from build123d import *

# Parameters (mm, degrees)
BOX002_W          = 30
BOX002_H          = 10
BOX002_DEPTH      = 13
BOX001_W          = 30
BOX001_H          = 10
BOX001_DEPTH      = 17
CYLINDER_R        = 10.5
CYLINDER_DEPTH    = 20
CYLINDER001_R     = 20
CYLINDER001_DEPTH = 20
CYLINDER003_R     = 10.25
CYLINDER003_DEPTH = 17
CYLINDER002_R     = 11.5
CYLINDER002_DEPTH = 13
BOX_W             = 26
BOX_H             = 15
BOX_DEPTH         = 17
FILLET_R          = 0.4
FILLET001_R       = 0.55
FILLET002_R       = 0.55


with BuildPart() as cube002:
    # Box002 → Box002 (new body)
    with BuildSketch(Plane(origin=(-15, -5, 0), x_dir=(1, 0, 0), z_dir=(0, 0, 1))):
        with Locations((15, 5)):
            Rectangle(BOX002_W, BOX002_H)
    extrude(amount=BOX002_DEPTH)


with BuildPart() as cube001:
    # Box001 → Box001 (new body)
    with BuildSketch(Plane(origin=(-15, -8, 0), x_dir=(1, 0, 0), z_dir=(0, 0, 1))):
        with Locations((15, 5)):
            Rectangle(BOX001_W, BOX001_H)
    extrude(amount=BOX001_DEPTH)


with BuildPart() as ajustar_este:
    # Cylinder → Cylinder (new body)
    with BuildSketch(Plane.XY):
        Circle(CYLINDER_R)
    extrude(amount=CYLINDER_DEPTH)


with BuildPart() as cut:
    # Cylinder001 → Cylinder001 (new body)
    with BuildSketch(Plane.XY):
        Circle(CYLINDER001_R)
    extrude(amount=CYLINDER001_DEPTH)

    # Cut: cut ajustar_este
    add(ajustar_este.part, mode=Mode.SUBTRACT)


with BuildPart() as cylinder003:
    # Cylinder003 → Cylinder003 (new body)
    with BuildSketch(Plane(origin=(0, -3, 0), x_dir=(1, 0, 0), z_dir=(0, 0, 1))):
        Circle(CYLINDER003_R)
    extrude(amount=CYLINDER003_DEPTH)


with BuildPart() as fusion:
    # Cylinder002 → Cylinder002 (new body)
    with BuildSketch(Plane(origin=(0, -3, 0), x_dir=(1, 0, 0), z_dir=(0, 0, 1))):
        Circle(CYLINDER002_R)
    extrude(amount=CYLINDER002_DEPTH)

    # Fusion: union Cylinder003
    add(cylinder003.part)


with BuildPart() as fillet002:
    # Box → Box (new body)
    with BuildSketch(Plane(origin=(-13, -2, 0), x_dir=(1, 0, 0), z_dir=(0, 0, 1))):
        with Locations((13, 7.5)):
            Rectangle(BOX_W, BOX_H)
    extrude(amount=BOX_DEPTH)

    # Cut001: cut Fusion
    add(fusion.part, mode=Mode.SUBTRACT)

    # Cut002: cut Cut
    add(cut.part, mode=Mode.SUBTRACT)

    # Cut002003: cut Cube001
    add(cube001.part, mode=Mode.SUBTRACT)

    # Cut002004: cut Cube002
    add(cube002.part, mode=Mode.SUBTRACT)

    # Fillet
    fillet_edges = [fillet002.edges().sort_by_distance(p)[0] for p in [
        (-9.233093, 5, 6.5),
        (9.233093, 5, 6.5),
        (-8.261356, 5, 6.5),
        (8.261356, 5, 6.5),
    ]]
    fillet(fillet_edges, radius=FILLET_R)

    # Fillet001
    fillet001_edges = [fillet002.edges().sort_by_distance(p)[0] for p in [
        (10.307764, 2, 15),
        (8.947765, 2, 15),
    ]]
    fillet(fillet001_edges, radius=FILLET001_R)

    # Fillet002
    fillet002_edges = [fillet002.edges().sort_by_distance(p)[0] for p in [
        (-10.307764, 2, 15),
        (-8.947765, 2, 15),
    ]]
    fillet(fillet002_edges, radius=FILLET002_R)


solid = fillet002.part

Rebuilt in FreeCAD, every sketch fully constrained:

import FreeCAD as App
import Part
import Sketcher
Q = App.Units.Quantity


def edges_at(feature, points):
    """Names of the edges that pass closest to the given points."""
    edges = feature.Shape.Edges
    near = lambda p: min(range(len(edges)), key=lambda i: edges[i].distToShape(Part.Vertex(*p))[0])
    return sorted({f"Edge{near(p) + 1}" for p in points})


def add_polygon(sketch, points):
    """Adds a closed chain of lines whose ends are joined by coincident constraints."""
    first, n = sketch.GeometryCount, len(points)
    for a, b in zip(points, points[1:] + points[:1]):
        sketch.addGeometry(Part.LineSegment(App.Vector(*a, 0), App.Vector(*b, 0)), False)
    for i in range(n):
        sketch.addConstraint(Sketcher.Constraint("Coincident", first + i, 2, first + (i + 1) % n, 1))

doc = App.newDocument("Part")
body = doc.addObject("PartDesign::Body", "Body")

# Sketch on XY plane
sketch1 = body.newObject("Sketcher::SketchObject", "Sketch")
sketch1.AttachmentSupport = (doc.getObject("XY_Plane"), [""])
sketch1.MapMode = "FlatFace"
add_polygon(sketch1, [(-15, 5), (-15, -5), (15, -5), (15, 5)])  # lines 0-3
sketch1.addConstraint(Sketcher.Constraint("Vertical", 0))
sketch1.addConstraint(Sketcher.Constraint("Horizontal", 1))
sketch1.addConstraint(Sketcher.Constraint("Vertical", 2))
sketch1.addConstraint(Sketcher.Constraint("Horizontal", 3))
sketch1.addConstraint(Sketcher.Constraint("Symmetric", 0, 2, 2, 2, -1, 1))
sketch1.addConstraint(Sketcher.Constraint("DistanceX", 1, 1, 1, 2, Q("30 mm")))
sketch1.addConstraint(Sketcher.Constraint("DistanceY", 0, 2, 0, 1, Q("10 mm")))
pad1 = body.newObject("PartDesign::Pad", "Pad")
pad1.Profile = sketch1
pad1.Length = 13
body2 = doc.addObject("PartDesign::Body", "Body001")

# Sketch on XY plane
sketch2 = body2.newObject("Sketcher::SketchObject", "Sketch001")
sketch2.AttachmentSupport = (doc.getObject("XY_Plane001"), [""])
sketch2.MapMode = "FlatFace"
add_polygon(sketch2, [(-15, 2), (-15, -8), (15, -8), (15, 2)])  # lines 0-3
sketch2.addConstraint(Sketcher.Constraint("Vertical", 0))
sketch2.addConstraint(Sketcher.Constraint("Horizontal", 1))
sketch2.addConstraint(Sketcher.Constraint("Vertical", 2))
sketch2.addConstraint(Sketcher.Constraint("Horizontal", 3))
sketch2.addConstraint(Sketcher.Constraint("DistanceX", 1, 1, 1, 2, Q("30 mm")))
sketch2.addConstraint(Sketcher.Constraint("DistanceY", 0, 2, 0, 1, Q("10 mm")))
sketch2.addConstraint(Sketcher.Constraint("DistanceX", 0, 2, -1, 1, Q("15 mm")))
sketch2.addConstraint(Sketcher.Constraint("DistanceY", 0, 2, -1, 1, Q("8 mm")))
pad2 = body2.newObject("PartDesign::Pad", "Pad001")
pad2.Profile = sketch2
pad2.Length = 17
body3 = doc.addObject("PartDesign::Body", "Body002")

# Sketch on XY plane
sketch3 = body3.newObject("Sketcher::SketchObject", "Sketch002")
sketch3.AttachmentSupport = (doc.getObject("XY_Plane002"), [""])
sketch3.MapMode = "FlatFace"
sketch3.addGeometry(Part.Circle(App.Vector(0, 0, 0), App.Vector(0, 0, 1), 10), False)
sketch3.addConstraint(Sketcher.Constraint("Coincident", 0, 3, -1, 1))
sketch3.addConstraint(Sketcher.Constraint("Diameter", 0, Q("21 mm")))
pad3 = body3.newObject("PartDesign::Pad", "Pad002")
pad3.Profile = sketch3
pad3.Length = 20
body4 = doc.addObject("PartDesign::Body", "Body003")

# Sketch on XY plane
sketch4 = body4.newObject("Sketcher::SketchObject", "Sketch003")
sketch4.AttachmentSupport = (doc.getObject("XY_Plane003"), [""])
sketch4.MapMode = "FlatFace"
sketch4.addGeometry(Part.Circle(App.Vector(0, 0, 0), App.Vector(0, 0, 1), 20), False)
sketch4.addConstraint(Sketcher.Constraint("Coincident", 0, 3, -1, 1))
sketch4.addConstraint(Sketcher.Constraint("Diameter", 0, Q("40 mm")))
pad4 = body4.newObject("PartDesign::Pad", "Pad003")
pad4.Profile = sketch4
pad4.Length = 20
doc.recompute()

boolean = body4.newObject("PartDesign::Boolean", "Boolean")
boolean.Type = "Cut"
boolean.addObjects([body3])
body5 = doc.addObject("PartDesign::Body", "Body004")

# Sketch on XY plane
sketch5 = body5.newObject("Sketcher::SketchObject", "Sketch004")
sketch5.AttachmentSupport = (doc.getObject("XY_Plane004"), [""])
sketch5.MapMode = "FlatFace"
sketch5.addGeometry(Part.Circle(App.Vector(0, -3, 0), App.Vector(0, 0, 1), 10), False)
sketch5.addConstraint(Sketcher.Constraint("PointOnObject", 0, 3, -2))
sketch5.addConstraint(Sketcher.Constraint("Diameter", 0, Q("20.5 mm")))
sketch5.addConstraint(Sketcher.Constraint("DistanceY", 0, 3, -1, 1, Q("3 mm")))
pad5 = body5.newObject("PartDesign::Pad", "Pad004")
pad5.Profile = sketch5
pad5.Length = 17
body6 = doc.addObject("PartDesign::Body", "Body005")

# Sketch on XY plane
sketch6 = body6.newObject("Sketcher::SketchObject", "Sketch005")
sketch6.AttachmentSupport = (doc.getObject("XY_Plane005"), [""])
sketch6.MapMode = "FlatFace"
sketch6.addGeometry(Part.Circle(App.Vector(0, -3, 0), App.Vector(0, 0, 1), 12), False)
sketch6.addConstraint(Sketcher.Constraint("PointOnObject", 0, 3, -2))
sketch6.addConstraint(Sketcher.Constraint("Diameter", 0, Q("23 mm")))
sketch6.addConstraint(Sketcher.Constraint("DistanceY", 0, 3, -1, 1, Q("3 mm")))
pad6 = body6.newObject("PartDesign::Pad", "Pad005")
pad6.Profile = sketch6
pad6.Length = 13
doc.recompute()

boolean2 = body6.newObject("PartDesign::Boolean", "Boolean001")
boolean2.Type = "Fuse"
boolean2.addObjects([body5])
body7 = doc.addObject("PartDesign::Body", "Body006")

# Sketch on XY plane
sketch7 = body7.newObject("Sketcher::SketchObject", "Sketch006")
sketch7.AttachmentSupport = (doc.getObject("XY_Plane006"), [""])
sketch7.MapMode = "FlatFace"
add_polygon(sketch7, [(-13, 13), (-13, -2), (13, -2), (13, 13)])  # lines 0-3
sketch7.addConstraint(Sketcher.Constraint("Vertical", 0))
sketch7.addConstraint(Sketcher.Constraint("Horizontal", 1))
sketch7.addConstraint(Sketcher.Constraint("Vertical", 2))
sketch7.addConstraint(Sketcher.Constraint("Horizontal", 3))
sketch7.addConstraint(Sketcher.Constraint("DistanceX", 1, 1, 1, 2, Q("26 mm")))
sketch7.addConstraint(Sketcher.Constraint("DistanceY", 0, 2, 0, 1, Q("15 mm")))
sketch7.addConstraint(Sketcher.Constraint("DistanceX", 0, 2, -1, 1, Q("13 mm")))
sketch7.addConstraint(Sketcher.Constraint("DistanceY", 0, 2, -1, 1, Q("2 mm")))
pad7 = body7.newObject("PartDesign::Pad", "Pad006")
pad7.Profile = sketch7
pad7.Length = 17
doc.recompute()

boolean3 = body7.newObject("PartDesign::Boolean", "Boolean002")
boolean3.Type = "Cut"
boolean3.addObjects([body6])
doc.recompute()

boolean4 = body7.newObject("PartDesign::Boolean", "Boolean003")
boolean4.Type = "Cut"
boolean4.addObjects([body4])
doc.recompute()

boolean5 = body7.newObject("PartDesign::Boolean", "Boolean004")
boolean5.Type = "Cut"
boolean5.addObjects([body2])
doc.recompute()

boolean6 = body7.newObject("PartDesign::Boolean", "Boolean005")
boolean6.Type = "Cut"
boolean6.addObjects([body])
doc.recompute()

fillet = body7.newObject("PartDesign::Fillet", "Fillet")
fillet.Base = (boolean6, edges_at(boolean6, [
    (-9.233, 5, 6.5),
    (9.233, 5, 6.5),
    (-8.261, 5, 6.5),
    (8.261, 5, 6.5),
]))
fillet.Radius = 0.4
doc.recompute()

fillet2 = body7.newObject("PartDesign::Fillet", "Fillet001")
fillet2.Base = (fillet, edges_at(fillet, [(10.308, 2, 15), (8.948, 2, 15)]))
fillet2.Radius = 0.55
doc.recompute()

fillet3 = body7.newObject("PartDesign::Fillet", "Fillet002")
fillet3.Base = (fillet2, edges_at(fillet2, [(-10.308, 2, 15), (-8.948, 2, 15)]))
fillet3.Radius = 0.55

doc.recompute()
